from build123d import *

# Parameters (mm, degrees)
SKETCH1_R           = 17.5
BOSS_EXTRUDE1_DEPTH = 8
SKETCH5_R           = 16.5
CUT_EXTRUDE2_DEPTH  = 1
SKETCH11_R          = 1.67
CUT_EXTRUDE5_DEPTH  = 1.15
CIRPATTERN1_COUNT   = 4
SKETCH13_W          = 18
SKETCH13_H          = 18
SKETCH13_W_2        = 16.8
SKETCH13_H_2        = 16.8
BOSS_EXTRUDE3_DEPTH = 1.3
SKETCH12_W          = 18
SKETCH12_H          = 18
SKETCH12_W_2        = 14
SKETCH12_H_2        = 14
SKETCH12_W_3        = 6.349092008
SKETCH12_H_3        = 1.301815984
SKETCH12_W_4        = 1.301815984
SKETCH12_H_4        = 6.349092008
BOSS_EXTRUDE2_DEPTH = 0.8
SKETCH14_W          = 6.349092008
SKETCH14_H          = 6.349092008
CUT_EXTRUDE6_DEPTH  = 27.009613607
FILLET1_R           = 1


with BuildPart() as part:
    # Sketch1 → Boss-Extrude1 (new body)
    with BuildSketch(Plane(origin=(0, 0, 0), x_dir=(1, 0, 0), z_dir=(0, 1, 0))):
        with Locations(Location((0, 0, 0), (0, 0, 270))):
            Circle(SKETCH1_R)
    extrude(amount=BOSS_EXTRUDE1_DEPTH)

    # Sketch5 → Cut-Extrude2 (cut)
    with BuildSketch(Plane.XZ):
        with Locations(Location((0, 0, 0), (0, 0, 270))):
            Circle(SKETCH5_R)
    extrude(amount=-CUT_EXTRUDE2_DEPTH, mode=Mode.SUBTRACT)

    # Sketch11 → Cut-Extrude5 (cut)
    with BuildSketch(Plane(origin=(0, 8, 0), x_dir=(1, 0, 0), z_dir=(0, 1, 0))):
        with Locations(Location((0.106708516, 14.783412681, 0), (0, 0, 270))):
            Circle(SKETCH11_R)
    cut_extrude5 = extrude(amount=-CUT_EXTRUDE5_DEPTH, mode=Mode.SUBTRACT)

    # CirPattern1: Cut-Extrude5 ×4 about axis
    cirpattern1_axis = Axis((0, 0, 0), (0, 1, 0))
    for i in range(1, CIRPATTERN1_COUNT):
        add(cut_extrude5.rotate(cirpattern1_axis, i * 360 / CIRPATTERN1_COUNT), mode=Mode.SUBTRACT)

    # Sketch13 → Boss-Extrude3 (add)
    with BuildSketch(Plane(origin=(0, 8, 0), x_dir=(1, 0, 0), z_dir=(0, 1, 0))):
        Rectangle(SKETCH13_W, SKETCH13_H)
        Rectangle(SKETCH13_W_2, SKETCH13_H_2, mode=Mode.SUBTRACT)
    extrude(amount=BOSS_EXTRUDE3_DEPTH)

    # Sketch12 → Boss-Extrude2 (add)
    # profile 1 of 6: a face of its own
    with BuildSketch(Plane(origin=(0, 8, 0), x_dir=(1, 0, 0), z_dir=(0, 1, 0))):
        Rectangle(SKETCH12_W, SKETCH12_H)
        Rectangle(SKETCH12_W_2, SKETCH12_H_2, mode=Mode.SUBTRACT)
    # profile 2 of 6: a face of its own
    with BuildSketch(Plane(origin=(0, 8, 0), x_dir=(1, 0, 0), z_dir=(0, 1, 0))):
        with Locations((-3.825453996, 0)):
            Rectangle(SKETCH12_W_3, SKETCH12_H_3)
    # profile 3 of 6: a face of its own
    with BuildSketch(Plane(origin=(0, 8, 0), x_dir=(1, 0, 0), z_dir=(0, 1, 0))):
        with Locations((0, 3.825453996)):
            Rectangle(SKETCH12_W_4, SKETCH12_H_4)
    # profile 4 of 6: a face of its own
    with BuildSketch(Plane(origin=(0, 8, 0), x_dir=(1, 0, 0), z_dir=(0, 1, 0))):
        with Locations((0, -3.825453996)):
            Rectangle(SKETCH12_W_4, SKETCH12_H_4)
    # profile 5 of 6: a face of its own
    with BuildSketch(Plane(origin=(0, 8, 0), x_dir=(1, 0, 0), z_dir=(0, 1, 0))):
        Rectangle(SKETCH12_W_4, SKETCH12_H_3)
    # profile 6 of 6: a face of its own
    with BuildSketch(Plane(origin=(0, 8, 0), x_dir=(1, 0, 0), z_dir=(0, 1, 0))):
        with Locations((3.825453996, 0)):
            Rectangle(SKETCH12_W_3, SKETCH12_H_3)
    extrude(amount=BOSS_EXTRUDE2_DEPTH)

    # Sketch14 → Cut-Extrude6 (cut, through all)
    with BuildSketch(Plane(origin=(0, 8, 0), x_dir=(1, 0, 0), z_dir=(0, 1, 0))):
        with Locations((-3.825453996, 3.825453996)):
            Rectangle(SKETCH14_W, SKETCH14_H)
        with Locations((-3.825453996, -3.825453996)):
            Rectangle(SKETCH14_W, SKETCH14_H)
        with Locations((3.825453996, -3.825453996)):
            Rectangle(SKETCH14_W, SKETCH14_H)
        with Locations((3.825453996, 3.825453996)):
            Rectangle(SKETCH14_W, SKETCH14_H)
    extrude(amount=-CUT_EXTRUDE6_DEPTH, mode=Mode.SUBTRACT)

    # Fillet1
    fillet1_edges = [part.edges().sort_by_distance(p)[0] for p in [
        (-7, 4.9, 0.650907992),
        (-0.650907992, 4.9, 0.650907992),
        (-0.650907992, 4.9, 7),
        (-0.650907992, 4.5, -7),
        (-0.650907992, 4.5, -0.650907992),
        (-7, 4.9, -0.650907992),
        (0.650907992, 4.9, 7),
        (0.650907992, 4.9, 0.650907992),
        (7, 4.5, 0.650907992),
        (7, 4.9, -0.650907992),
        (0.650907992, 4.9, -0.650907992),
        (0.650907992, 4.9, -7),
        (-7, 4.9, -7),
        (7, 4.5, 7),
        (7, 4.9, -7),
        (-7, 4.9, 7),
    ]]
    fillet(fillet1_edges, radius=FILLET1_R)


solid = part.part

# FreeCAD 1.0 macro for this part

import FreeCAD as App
import Part
import Sketcher
from FreeCAD import Vector


def edges_at(feature, points):
    """Names of the edges that pass closest to the given points."""
    edges = feature.Shape.Edges
    near = lambda p: min(range(len(edges)), key=lambda i: edges[i].distToShape(Part.Vertex(*p))[0])
    return sorted({f"Edge{near(p) + 1}" for p in points})

doc = App.newDocument("Part")
params = doc.addObject("Spreadsheet::Sheet", "Params")
for row, (alias, value) in enumerate([
    ("sketch1_diameter", "35 mm"),
    ("pad1_length", "8 mm"),
    ("sketch2_diameter", "33 mm"),
    ("pocket1_length", "1 mm"),
    ("sketch3_diameter", "3.34 mm"),
    ("pocket2_length", "1.15 mm"),
    ("sketch4_width", "18 mm"),
    ("sketch4_width2", "16.8 mm"),
    ("pad2_length", "1.3 mm"),
    ("sketch5_width", "18 mm"),
    ("pad3_length", "0.8 mm"),
    ("fillet_radius", "1 mm"),
], start=1):
    params.set(f"A{row}", alias)
    params.set(f"B{row}", "=" + value)
    params.setAlias(f"B{row}", alias)

body = doc.addObject("PartDesign::Body", "Body")

# Sketch on XZ plane
sketch1 = doc.addObject("Sketcher::SketchObject", "Sketch")
body.addObject(sketch1)
sketch1.AttachmentSupport = (doc.XZ_Plane, [""])
sketch1.MapMode = "FlatFace"
sketch1.addGeometry(Part.Circle(Vector(0, 0, 0), Vector(0, 0, 1), 17.5), False)
sketch1.addConstraint(Sketcher.Constraint("Coincident", 0, 3, -1, 1))
sketch1.addConstraint(Sketcher.Constraint("Diameter", 0, 35.0))
sketch1.setExpression("Constraints[1]", "Params.sketch1_diameter")
pad1 = doc.addObject("PartDesign::Pad", "Pad")
body.addObject(pad1)
pad1.Profile = sketch1
pad1.setExpression("Length", "Params.pad1_length")
pad1.Reversed = True

# Sketch on XZ plane
sketch2 = doc.addObject("Sketcher::SketchObject", "Sketch001")
body.addObject(sketch2)
sketch2.AttachmentSupport = (doc.XZ_Plane, [""])
sketch2.MapMode = "FlatFace"
sketch2.addGeometry(Part.Circle(Vector(0, 0, 0), Vector(0, 0, 1), 16.5), False)
sketch2.addConstraint(Sketcher.Constraint("Coincident", 0, 3, -1, 1))
sketch2.addConstraint(Sketcher.Constraint("Diameter", 0, 33.0))
sketch2.setExpression("Constraints[1]", "Params.sketch2_diameter")
pocket1 = doc.addObject("PartDesign::Pocket", "Pocket")
body.addObject(pocket1)
pocket1.Profile = sketch2
pocket1.setExpression("Length", "Params.pocket1_length")

# Sketch on XZ plane
sketch3 = doc.addObject("Sketcher::SketchObject", "Sketch002")
body.addObject(sketch3)
sketch3.AttachmentSupport = (doc.XZ_Plane, [""])
sketch3.MapMode = "FlatFace"
sketch3.AttachmentOffset = App.Placement(Vector(0, 0, -8), App.Rotation())
sketch3.addGeometry(Part.Circle(Vector(0.106709, -14.783413, 0), Vector(0, 0, 1), 1.67), False)
sketch3.addConstraint(Sketcher.Constraint("Diameter", 0, 3.34))
sketch3.addConstraint(Sketcher.Constraint("DistanceX", -1, 1, 0, 3, 0.106709))
sketch3.addConstraint(Sketcher.Constraint("DistanceY", 0, 3, -1, 1, 14.783413))
sketch3.setExpression("Constraints[0]", "Params.sketch3_diameter")
pocket2 = doc.addObject("PartDesign::Pocket", "Pocket001")
body.addObject(pocket2)
pocket2.Profile = sketch3
pocket2.setExpression("Length", "Params.pocket2_length")
pocket2.Reversed = True
doc.recompute()

polarpattern = doc.addObject("PartDesign::PolarPattern", "PolarPattern")
body.addObject(polarpattern)
polarpattern.Originals = [pocket2]
polarpattern.Axis = (doc.Y_Axis, [""])
polarpattern.Angle = 360
polarpattern.Occurrences = 4
body.Tip = polarpattern

# Sketch on XZ plane
sketch4 = doc.addObject("Sketcher::SketchObject", "Sketch003")
body.addObject(sketch4)
sketch4.AttachmentSupport = (doc.XZ_Plane, [""])
sketch4.MapMode = "FlatFace"
sketch4.AttachmentOffset = App.Placement(Vector(0, 0, -8), App.Rotation())
sketch4.addGeometry(Part.LineSegment(Vector(-9, -9, 0), Vector(-9, 9, 0)), False)
sketch4.addGeometry(Part.LineSegment(Vector(-9, 9, 0), Vector(9, 9, 0)), False)
sketch4.addGeometry(Part.LineSegment(Vector(9, 9, 0), Vector(9, -9, 0)), False)
sketch4.addGeometry(Part.LineSegment(Vector(9, -9, 0), Vector(-9, -9, 0)), False)
sketch4.addGeometry(Part.LineSegment(Vector(8.4, 8.4, 0), Vector(-8.4, 8.4, 0)), False)
sketch4.addGeometry(Part.LineSegment(Vector(-8.4, 8.4, 0), Vector(-8.4, -8.4, 0)), False)
sketch4.addGeometry(Part.LineSegment(Vector(-8.4, -8.4, 0), Vector(8.4, -8.4, 0)), False)
sketch4.addGeometry(Part.LineSegment(Vector(8.4, -8.4, 0), Vector(8.4, 8.4, 0)), False)
sketch4.addConstraint(Sketcher.Constraint("Coincident", 0, 2, 1, 1))
sketch4.addConstraint(Sketcher.Constraint("Coincident", 1, 2, 2, 1))
sketch4.addConstraint(Sketcher.Constraint("Coincident", 2, 2, 3, 1))
sketch4.addConstraint(Sketcher.Constraint("Coincident", 3, 2, 0, 1))
sketch4.addConstraint(Sketcher.Constraint("Coincident", 4, 2, 5, 1))
sketch4.addConstraint(Sketcher.Constraint("Coincident", 5, 2, 6, 1))
sketch4.addConstraint(Sketcher.Constraint("Coincident", 6, 2, 7, 1))
sketch4.addConstraint(Sketcher.Constraint("Coincident", 7, 2, 4, 1))
sketch4.addConstraint(Sketcher.Constraint("Vertical", 0))
sketch4.addConstraint(Sketcher.Constraint("Horizontal", 1))
sketch4.addConstraint(Sketcher.Constraint("Vertical", 2))
sketch4.addConstraint(Sketcher.Constraint("Horizontal", 3))
sketch4.addConstraint(Sketcher.Constraint("Horizontal", 4))
sketch4.addConstraint(Sketcher.Constraint("Vertical", 5))
sketch4.addConstraint(Sketcher.Constraint("Horizontal", 6))
sketch4.addConstraint(Sketcher.Constraint("Vertical", 7))
sketch4.addConstraint(Sketcher.Constraint("Symmetric", 0, 2, 2, 2, -1, 1))
sketch4.addConstraint(Sketcher.Constraint("Symmetric", 4, 2, 6, 2, -1, 1))
sketch4.addConstraint(Sketcher.Constraint("Equal", 3, 0))
sketch4.addConstraint(Sketcher.Constraint("Equal", 6, 5))
sketch4.addConstraint(Sketcher.Constraint("DistanceX", 1, 1, 1, 2, 18.0))
sketch4.addConstraint(Sketcher.Constraint("DistanceX", 4, 2, 4, 1, 16.8))
sketch4.setExpression("Constraints[20]", "Params.sketch4_width")
sketch4.setExpression("Constraints[21]", "Params.sketch4_width2")
pad2 = doc.addObject("PartDesign::Pad", "Pad001")
body.addObject(pad2)
pad2.Profile = sketch4
pad2.setExpression("Length", "Params.pad2_length")
pad2.Reversed = True

# Sketch on XZ plane
sketch5 = doc.addObject("Sketcher::SketchObject", "Sketch004")
body.addObject(sketch5)
sketch5.AttachmentSupport = (doc.XZ_Plane, [""])
sketch5.MapMode = "FlatFace"
sketch5.AttachmentOffset = App.Placement(Vector(0, 0, -8), App.Rotation())
sketch5.addGeometry(Part.LineSegment(Vector(-9, -9, 0), Vector(-9, 9, 0)), False)
sketch5.addGeometry(Part.LineSegment(Vector(-9, 9, 0), Vector(9, 9, 0)), False)
sketch5.addGeometry(Part.LineSegment(Vector(9, 9, 0), Vector(9, -9, 0)), False)
sketch5.addGeometry(Part.LineSegment(Vector(9, -9, 0), Vector(-9, -9, 0)), False)
sketch5.addGeometry(Part.LineSegment(Vector(-0.650908, 7, 0), Vector(-7, 7, 0)), False)
sketch5.addGeometry(Part.LineSegment(Vector(-7, 7, 0), Vector(-7, 0.650908, 0)), False)
sketch5.addGeometry(Part.LineSegment(Vector(-7, 0.650908, 0), Vector(-0.650908, 0.650908, 0)), False)
sketch5.addGeometry(Part.LineSegment(Vector(-0.650908, 0.650908, 0), Vector(-0.650908, 7, 0)), False)
sketch5.addGeometry(Part.LineSegment(Vector(7, 7, 0), Vector(0.650908, 7, 0)), False)
sketch5.addGeometry(Part.LineSegment(Vector(0.650908, 7, 0), Vector(0.650908, 0.650908, 0)), False)
sketch5.addGeometry(Part.LineSegment(Vector(0.650908, 0.650908, 0), Vector(7, 0.650908, 0)), False)
sketch5.addGeometry(Part.LineSegment(Vector(7, 0.650908, 0), Vector(7, 7, 0)), False)
sketch5.addGeometry(Part.LineSegment(Vector(7, -7, 0), Vector(7, -0.650908, 0)), False)
sketch5.addGeometry(Part.LineSegment(Vector(7, -0.650908, 0), Vector(0.650908, -0.650908, 0)), False)
sketch5.addGeometry(Part.LineSegment(Vector(0.650908, -0.650908, 0), Vector(0.650908, -7, 0)), False)
sketch5.addGeometry(Part.LineSegment(Vector(0.650908, -7, 0), Vector(7, -7, 0)), False)
sketch5.addGeometry(Part.LineSegment(Vector(-7, -7, 0), Vector(-0.650908, -7, 0)), False)
sketch5.addGeometry(Part.LineSegment(Vector(-0.650908, -7, 0), Vector(-0.650908, -0.650908, 0)), False)
sketch5.addGeometry(Part.LineSegment(Vector(-0.650908, -0.650908, 0), Vector(-7, -0.650908, 0)), False)
sketch5.addGeometry(Part.LineSegment(Vector(-7, -0.650908, 0), Vector(-7, -7, 0)), False)
sketch5.addConstraint(Sketcher.Constraint("Coincident", 0, 2, 1, 1))
sketch5.addConstraint(Sketcher.Constraint("Coincident", 1, 2, 2, 1))
sketch5.addConstraint(Sketcher.Constraint("Coincident", 2, 2, 3, 1))
sketch5.addConstraint(Sketcher.Constraint("Coincident", 3, 2, 0, 1))
sketch5.addConstraint(Sketcher.Constraint("Coincident", 4, 2, 5, 1))
sketch5.addConstraint(Sketcher.Constraint("Coincident", 5, 2, 6, 1))
sketch5.addConstraint(Sketcher.Constraint("Coincident", 6, 2, 7, 1))
sketch5.addConstraint(Sketcher.Constraint("Coincident", 7, 2, 4, 1))
sketch5.addConstraint(Sketcher.Constraint("Coincident", 8, 2, 9, 1))
sketch5.addConstraint(Sketcher.Constraint("Coincident", 9, 2, 10, 1))
sketch5.addConstraint(Sketcher.Constraint("Coincident", 10, 2, 11, 1))
sketch5.addConstraint(Sketcher.Constraint("Coincident", 11, 2, 8, 1))
sketch5.addConstraint(Sketcher.Constraint("Coincident", 12, 2, 13, 1))
sketch5.addConstraint(Sketcher.Constraint("Coincident", 13, 2, 14, 1))
sketch5.addConstraint(Sketcher.Constraint("Coincident", 14, 2, 15, 1))
sketch5.addConstraint(Sketcher.Constraint("Coincident", 15, 2, 12, 1))
sketch5.addConstraint(Sketcher.Constraint("Coincident", 16, 2, 17, 1))
sketch5.addConstraint(Sketcher.Constraint("Coincident", 17, 2, 18, 1))
sketch5.addConstraint(Sketcher.Constraint("Coincident", 18, 2, 19, 1))
sketch5.addConstraint(Sketcher.Constraint("Coincident", 19, 2, 16, 1))
sketch5.addConstraint(Sketcher.Constraint("Vertical", 0))
sketch5.addConstraint(Sketcher.Constraint("Horizontal", 1))
sketch5.addConstraint(Sketcher.Constraint("Vertical", 2))
sketch5.addConstraint(Sketcher.Constraint("Horizontal", 3))
sketch5.addConstraint(Sketcher.Constraint("Horizontal", 4))
sketch5.addConstraint(Sketcher.Constraint("Vertical", 5))
sketch5.addConstraint(Sketcher.Constraint("Horizontal", 6))
sketch5.addConstraint(Sketcher.Constraint("Vertical", 7))
sketch5.addConstraint(Sketcher.Constraint("Horizontal", 8))
sketch5.addConstraint(Sketcher.Constraint("Vertical", 9))
sketch5.addConstraint(Sketcher.Constraint("Horizontal", 10))
sketch5.addConstraint(Sketcher.Constraint("Vertical", 11))
sketch5.addConstraint(Sketcher.Constraint("Vertical", 12))
sketch5.addConstraint(Sketcher.Constraint("Horizontal", 13))
sketch5.addConstraint(Sketcher.Constraint("Vertical", 14))
sketch5.addConstraint(Sketcher.Constraint("Horizontal", 15))
sketch5.addConstraint(Sketcher.Constraint("Horizontal", 16))
sketch5.addConstraint(Sketcher.Constraint("Vertical", 17))
sketch5.addConstraint(Sketcher.Constraint("Horizontal", 18))
sketch5.addConstraint(Sketcher.Constraint("Vertical", 19))
sketch5.addConstraint(Sketcher.Constraint("Symmetric", 0, 2, 2, 2, -1, 1))
sketch5.addConstraint(Sketcher.Constraint("Symmetric", 5, 2, 12, 2, -1, 1))
sketch5.addConstraint(Sketcher.Constraint("Symmetric", 7, 2, 14, 2, -1, 1))
sketch5.addConstraint(Sketcher.Constraint("Symmetric", 8, 2, 16, 2, -1, 1))
sketch5.addConstraint(Sketcher.Constraint("Symmetric", 10, 2, 18, 2, -1, 1))
sketch5.addConstraint(Sketcher.Constraint("Symmetric", 7, 2, 8, 2, -2))
sketch5.addConstraint(Sketcher.Constraint("Symmetric", 5, 2, 10, 2, -2))
sketch5.addConstraint(Sketcher.Constraint("Equal", 3, 0))
sketch5.addConstraint(Sketcher.Constraint("Equal", 18, 5))
sketch5.addConstraint(Sketcher.Constraint("DistanceX", 1, 1, 1, 2, 18.0))
sketch5.addConstraint(Sketcher.Constraint("DistanceX", 4, 2, -1, 1, 7.0))
sketch5.addConstraint(Sketcher.Constraint("DistanceY", -1, 1, 4, 2, 7.0))
sketch5.addConstraint(Sketcher.Constraint("DistanceX", 4, 2, 4, 1, 6.349092))
sketch5.setExpression("Constraints[49]", "Params.sketch5_width")
pad3 = doc.addObject("PartDesign::Pad", "Pad002")
body.addObject(pad3)
pad3.Profile = sketch5
pad3.setExpression("Length", "Params.pad3_length")
pad3.Reversed = True

# Sketch on XZ plane
sketch6 = doc.addObject("Sketcher::SketchObject", "Sketch005")
body.addObject(sketch6)
sketch6.AttachmentSupport = (doc.XZ_Plane, [""])
sketch6.MapMode = "FlatFace"
sketch6.AttachmentOffset = App.Placement(Vector(0, 0, -8), App.Rotation())
sketch6.addGeometry(Part.LineSegment(Vector(-7, -7, 0), Vector(-7, -0.650908, 0)), False)
sketch6.addGeometry(Part.LineSegment(Vector(-7, -0.650908, 0), Vector(-0.650908, -0.650908, 0)), False)
sketch6.addGeometry(Part.LineSegment(Vector(-0.650908, -0.650908, 0), Vector(-0.650908, -7, 0)), False)
sketch6.addGeometry(Part.LineSegment(Vector(-0.650908, -7, 0), Vector(-7, -7, 0)), False)
sketch6.addGeometry(Part.LineSegment(Vector(-7, 0.650908, 0), Vector(-7, 7, 0)), False)
sketch6.addGeometry(Part.LineSegment(Vector(-7, 7, 0), Vector(-0.650908, 7, 0)), False)
sketch6.addGeometry(Part.LineSegment(Vector(-0.650908, 7, 0), Vector(-0.650908, 0.650908, 0)), False)
sketch6.addGeometry(Part.LineSegment(Vector(-0.650908, 0.650908, 0), Vector(-7, 0.650908, 0)), False)
sketch6.addGeometry(Part.LineSegment(Vector(0.650908, 0.650908, 0), Vector(0.650908, 7, 0)), False)
sketch6.addGeometry(Part.LineSegment(Vector(0.650908, 7, 0), Vector(7, 7, 0)), False)
sketch6.addGeometry(Part.LineSegment(Vector(7, 7, 0), Vector(7, 0.650908, 0)), False)
sketch6.addGeometry(Part.LineSegment(Vector(7, 0.650908, 0), Vector(0.650908, 0.650908, 0)), False)
sketch6.addGeometry(Part.LineSegment(Vector(0.650908, -7, 0), Vector(0.650908, -0.650908, 0)), False)
sketch6.addGeometry(Part.LineSegment(Vector(0.650908, -0.650908, 0), Vector(7, -0.650908, 0)), False)
sketch6.addGeometry(Part.LineSegment(Vector(7, -0.650908, 0), Vector(7, -7, 0)), False)
sketch6.addGeometry(Part.LineSegment(Vector(7, -7, 0), Vector(0.650908, -7, 0)), False)
sketch6.addConstraint(Sketcher.Constraint("Coincident", 0, 2, 1, 1))
sketch6.addConstraint(Sketcher.Constraint("Coincident", 1, 2, 2, 1))
sketch6.addConstraint(Sketcher.Constraint("Coincident", 2, 2, 3, 1))
sketch6.addConstraint(Sketcher.Constraint("Coincident", 3, 2, 0, 1))
sketch6.addConstraint(Sketcher.Constraint("Coincident", 4, 2, 5, 1))
sketch6.addConstraint(Sketcher.Constraint("Coincident", 5, 2, 6, 1))
sketch6.addConstraint(Sketcher.Constraint("Coincident", 6, 2, 7, 1))
sketch6.addConstraint(Sketcher.Constraint("Coincident", 7, 2, 4, 1))
sketch6.addConstraint(Sketcher.Constraint("Coincident", 8, 2, 9, 1))
sketch6.addConstraint(Sketcher.Constraint("Coincident", 9, 2, 10, 1))
sketch6.addConstraint(Sketcher.Constraint("Coincident", 10, 2, 11, 1))
sketch6.addConstraint(Sketcher.Constraint("Coincident", 11, 2, 8, 1))
sketch6.addConstraint(Sketcher.Constraint("Coincident", 12, 2, 13, 1))
sketch6.addConstraint(Sketcher.Constraint("Coincident", 13, 2, 14, 1))
sketch6.addConstraint(Sketcher.Constraint("Coincident", 14, 2, 15, 1))
sketch6.addConstraint(Sketcher.Constraint("Coincident", 15, 2, 12, 1))
sketch6.addConstraint(Sketcher.Constraint("Vertical", 0))
sketch6.addConstraint(Sketcher.Constraint("Horizontal", 1))
sketch6.addConstraint(Sketcher.Constraint("Vertical", 2))
sketch6.addConstraint(Sketcher.Constraint("Horizontal", 3))
sketch6.addConstraint(Sketcher.Constraint("Vertical", 4))
sketch6.addConstraint(Sketcher.Constraint("Horizontal", 5))
sketch6.addConstraint(Sketcher.Constraint("Vertical", 6))
sketch6.addConstraint(Sketcher.Constraint("Horizontal", 7))
sketch6.addConstraint(Sketcher.Constraint("Vertical", 8))
sketch6.addConstraint(Sketcher.Constraint("Horizontal", 9))
sketch6.addConstraint(Sketcher.Constraint("Vertical", 10))
sketch6.addConstraint(Sketcher.Constraint("Horizontal", 11))
sketch6.addConstraint(Sketcher.Constraint("Vertical", 12))
sketch6.addConstraint(Sketcher.Constraint("Horizontal", 13))
sketch6.addConstraint(Sketcher.Constraint("Vertical", 14))
sketch6.addConstraint(Sketcher.Constraint("Horizontal", 15))
sketch6.addConstraint(Sketcher.Constraint("Symmetric", 2, 2, 8, 2, -1, 1))
sketch6.addConstraint(Sketcher.Constraint("Symmetric", 0, 2, 10, 2, -1, 1))
sketch6.addConstraint(Sketcher.Constraint("Symmetric", 6, 2, 12, 2, -1, 1))
sketch6.addConstraint(Sketcher.Constraint("Symmetric", 4, 2, 14, 2, -1, 1))
sketch6.addConstraint(Sketcher.Constraint("Symmetric", 5, 2, 8, 2, -2))
sketch6.addConstraint(Sketcher.Constraint("Symmetric", 7, 2, 10, 2, -2))
sketch6.addConstraint(Sketcher.Constraint("Equal", 15, 0))
sketch6.addConstraint(Sketcher.Constraint("DistanceX", 0, 2, -1, 1, 7.0))
sketch6.addConstraint(Sketcher.Constraint("DistanceY", 2, 2, -1, 1, 7.0))
sketch6.addConstraint(Sketcher.Constraint("DistanceX", 1, 1, 1, 2, 6.349092))
pocket3 = doc.addObject("PartDesign::Pocket", "Pocket002")
body.addObject(pocket3)
pocket3.Profile = sketch6
pocket3.Type = "ThroughAll"
pocket3.Reversed = True
doc.recompute()

fillet = doc.addObject("PartDesign::Fillet", "Fillet")
body.addObject(fillet)
fillet.Base = (pocket3, edges_at(pocket3, [
    (-7, 4.9, 0.651),
    (-0.651, 4.9, 0.651),
    (-0.651, 4.9, 7),
    (-0.651, 4.9, -7),
    (-0.651, 4.9, -0.651),
    (-7, 4.9, -0.651),
    (0.651, 4.9, 7),
    (0.651, 4.9, 0.651),
    (7, 4.9, 0.651),
    (7, 4.9, -0.651),
    (0.651, 4.9, -0.651),
    (0.651, 4.9, -7),
    (-7, 4.9, -7),
    (7, 4.9, 7),
    (7, 4.9, -7),
    (-7, 4.9, 7),
]))
fillet.setExpression("Radius", "Params.fillet_radius")

doc.recompute()
